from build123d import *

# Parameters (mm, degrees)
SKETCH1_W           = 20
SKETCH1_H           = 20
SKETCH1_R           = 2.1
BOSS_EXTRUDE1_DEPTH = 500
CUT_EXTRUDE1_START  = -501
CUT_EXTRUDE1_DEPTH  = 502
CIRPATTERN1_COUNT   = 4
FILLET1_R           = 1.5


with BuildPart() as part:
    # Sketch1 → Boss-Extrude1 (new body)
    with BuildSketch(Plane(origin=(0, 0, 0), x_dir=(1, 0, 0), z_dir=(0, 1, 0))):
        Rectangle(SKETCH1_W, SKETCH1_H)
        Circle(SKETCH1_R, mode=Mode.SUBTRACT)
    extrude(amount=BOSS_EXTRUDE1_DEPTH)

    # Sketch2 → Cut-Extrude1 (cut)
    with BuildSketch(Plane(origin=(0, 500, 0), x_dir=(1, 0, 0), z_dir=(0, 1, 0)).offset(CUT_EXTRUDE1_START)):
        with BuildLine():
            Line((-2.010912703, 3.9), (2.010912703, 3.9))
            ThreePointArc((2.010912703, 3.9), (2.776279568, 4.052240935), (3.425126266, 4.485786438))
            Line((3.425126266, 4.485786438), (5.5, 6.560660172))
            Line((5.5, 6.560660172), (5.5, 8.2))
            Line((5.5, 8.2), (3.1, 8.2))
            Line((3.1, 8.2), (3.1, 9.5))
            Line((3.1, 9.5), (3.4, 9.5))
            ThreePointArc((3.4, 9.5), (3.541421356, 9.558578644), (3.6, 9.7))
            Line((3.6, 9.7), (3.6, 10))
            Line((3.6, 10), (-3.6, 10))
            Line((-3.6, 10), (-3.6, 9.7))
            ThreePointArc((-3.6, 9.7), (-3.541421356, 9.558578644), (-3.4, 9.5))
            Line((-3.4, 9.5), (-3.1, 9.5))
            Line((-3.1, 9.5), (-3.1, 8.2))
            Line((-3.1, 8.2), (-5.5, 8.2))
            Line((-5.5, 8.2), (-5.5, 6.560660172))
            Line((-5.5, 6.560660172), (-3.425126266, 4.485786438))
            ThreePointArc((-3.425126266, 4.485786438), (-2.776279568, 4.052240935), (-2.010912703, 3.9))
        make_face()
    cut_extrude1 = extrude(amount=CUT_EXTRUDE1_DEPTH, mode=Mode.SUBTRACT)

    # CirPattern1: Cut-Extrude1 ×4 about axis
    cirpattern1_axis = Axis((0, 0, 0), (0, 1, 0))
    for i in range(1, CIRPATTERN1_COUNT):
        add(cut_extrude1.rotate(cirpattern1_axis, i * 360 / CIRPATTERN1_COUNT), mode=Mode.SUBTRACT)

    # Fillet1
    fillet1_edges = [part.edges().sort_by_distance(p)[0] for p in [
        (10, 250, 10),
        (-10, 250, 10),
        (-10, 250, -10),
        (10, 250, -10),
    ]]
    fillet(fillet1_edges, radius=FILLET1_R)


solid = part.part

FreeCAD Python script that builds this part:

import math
import FreeCAD as App
import Part
import Sketcher
Q = App.Units.Quantity


def edges_at(feature, points):
    """Names of the edges that pass closest to the given points."""
    edges = feature.Shape.Edges
    near = lambda p: min(range(len(edges)), key=lambda i: edges[i].distToShape(Part.Vertex(*p))[0])
    return sorted({f"Edge{near(p) + 1}" for p in points})

doc = App.newDocument("Part")
body = doc.addObject("PartDesign::Body", "Body")

# Sketch on XZ plane
sketch1 = body.newObject("Sketcher::SketchObject", "Sketch")
sketch1.AttachmentSupport = (doc.getObject("XZ_Plane"), [""])
sketch1.MapMode = "FlatFace"
sketch1.addGeometry(Part.LineSegment(App.Vector(-10, -10, 0), App.Vector(-10, 10, 0)), False)
sketch1.addGeometry(Part.LineSegment(App.Vector(-10, 10, 0), App.Vector(10, 10, 0)), False)
sketch1.addGeometry(Part.LineSegment(App.Vector(10, 10, 0), App.Vector(10, -10, 0)), False)
sketch1.addGeometry(Part.LineSegment(App.Vector(10, -10, 0), App.Vector(-10, -10, 0)), False)
sketch1.addGeometry(Part.Circle(App.Vector(0, 0, 0), App.Vector(0, 0, 1), 2.1), False)
sketch1.addConstraint(Sketcher.Constraint("Coincident", 0, 2, 1, 1))
sketch1.addConstraint(Sketcher.Constraint("Coincident", 1, 2, 2, 1))
sketch1.addConstraint(Sketcher.Constraint("Coincident", 2, 2, 3, 1))
sketch1.addConstraint(Sketcher.Constraint("Coincident", 3, 2, 0, 1))
sketch1.addConstraint(Sketcher.Constraint("Vertical", 0))
sketch1.addConstraint(Sketcher.Constraint("Horizontal", 1))
sketch1.addConstraint(Sketcher.Constraint("Vertical", 2))
sketch1.addConstraint(Sketcher.Constraint("Horizontal", 3))
sketch1.addConstraint(Sketcher.Constraint("Coincident", 4, 3, -1, 1))
sketch1.addConstraint(Sketcher.Constraint("Symmetric", 0, 2, 2, 2, -1, 1))
sketch1.addConstraint(Sketcher.Constraint("Equal", 3, 0))
sketch1.addConstraint(Sketcher.Constraint("Diameter", 4, Q("4.2 mm")))
sketch1.addConstraint(Sketcher.Constraint("DistanceX", 1, 1, 1, 2, Q("20 mm")))
pad1 = body.newObject("PartDesign::Pad", "Pad")
pad1.Profile = sketch1
pad1.Length = 500
pad1.Reversed = True

# Sketch on XZ plane
sketch2 = body.newObject("Sketcher::SketchObject", "Sketch001")
sketch2.AttachmentSupport = (doc.getObject("XZ_Plane"), [""])
sketch2.MapMode = "FlatFace"
sketch2.AttachmentOffset = App.Placement(App.Vector(0, 0, 1), App.Rotation())
sketch2.addGeometry(Part.LineSegment(App.Vector(-2.01, -3.9, 0), App.Vector(2.01, -3.9, 0)), False)
sketch2.addGeometry(Part.ArcOfCircle(Part.Circle(App.Vector(2.01, -5.9, 0), App.Vector(0, 0, 1), 2), math.radians(45), math.radians(90)), False)
sketch2.addGeometry(Part.LineSegment(App.Vector(3.43, -4.49, 0), App.Vector(5.5, -6.56, 0)), False)
sketch2.addGeometry(Part.LineSegment(App.Vector(5.5, -6.56, 0), App.Vector(5.5, -8.2, 0)), False)
sketch2.addGeometry(Part.LineSegment(App.Vector(5.5, -8.2, 0), App.Vector(3.1, -8.2, 0)), False)
sketch2.addGeometry(Part.LineSegment(App.Vector(3.1, -8.2, 0), App.Vector(3.1, -9.5, 0)), False)
sketch2.addGeometry(Part.LineSegment(App.Vector(3.1, -9.5, 0), App.Vector(3.4, -9.5, 0)), False)
sketch2.addGeometry(Part.ArcOfCircle(Part.Circle(App.Vector(3.4, -9.7, 0), App.Vector(0, 0, 1), 0.2), math.radians(0), math.radians(90)), False)
sketch2.addGeometry(Part.LineSegment(App.Vector(3.6, -9.7, 0), App.Vector(3.6, -10, 0)), False)
sketch2.addGeometry(Part.LineSegment(App.Vector(3.6, -10, 0), App.Vector(-3.6, -10, 0)), False)
sketch2.addGeometry(Part.LineSegment(App.Vector(-3.6, -10, 0), App.Vector(-3.6, -9.7, 0)), False)
sketch2.addGeometry(Part.ArcOfCircle(Part.Circle(App.Vector(-3.4, -9.7, 0), App.Vector(0, 0, 1), 0.2), math.radians(90), math.radians(180)), False)
sketch2.addGeometry(Part.LineSegment(App.Vector(-3.4, -9.5, 0), App.Vector(-3.1, -9.5, 0)), False)
sketch2.addGeometry(Part.LineSegment(App.Vector(-3.1, -9.5, 0), App.Vector(-3.1, -8.2, 0)), False)
sketch2.addGeometry(Part.LineSegment(App.Vector(-3.1, -8.2, 0), App.Vector(-5.5, -8.2, 0)), False)
sketch2.addGeometry(Part.LineSegment(App.Vector(-5.5, -8.2, 0), App.Vector(-5.5, -6.56, 0)), False)
sketch2.addGeometry(Part.LineSegment(App.Vector(-5.5, -6.56, 0), App.Vector(-3.43, -4.49, 0)), False)
sketch2.addGeometry(Part.ArcOfCircle(Part.Circle(App.Vector(-2.01, -5.9, 0), App.Vector(0, 0, 1), 2), math.radians(90), math.radians(135)), False)
sketch2.addConstraint(Sketcher.Constraint("Tangent", 0, 2, 1, 2))
sketch2.addConstraint(Sketcher.Constraint("Tangent", 1, 1, 2, 1))
sketch2.addConstraint(Sketcher.Constraint("Coincident", 2, 2, 3, 1))
sketch2.addConstraint(Sketcher.Constraint("Coincident", 3, 2, 4, 1))
sketch2.addConstraint(Sketcher.Constraint("Coincident", 4, 2, 5, 1))
sketch2.addConstraint(Sketcher.Constraint("Coincident", 5, 2, 6, 1))
sketch2.addConstraint(Sketcher.Constraint("Tangent", 6, 2, 7, 2))
sketch2.addConstraint(Sketcher.Constraint("Tangent", 7, 1, 8, 1))
sketch2.addConstraint(Sketcher.Constraint("Coincident", 8, 2, 9, 1))
sketch2.addConstraint(Sketcher.Constraint("Coincident", 9, 2, 10, 1))
sketch2.addConstraint(Sketcher.Constraint("Tangent", 10, 2, 11, 2))
sketch2.addConstraint(Sketcher.Constraint("Tangent", 11, 1, 12, 1))
sketch2.addConstraint(Sketcher.Constraint("Coincident", 12, 2, 13, 1))
sketch2.addConstraint(Sketcher.Constraint("Coincident", 13, 2, 14, 1))
sketch2.addConstraint(Sketcher.Constraint("Coincident", 14, 2, 15, 1))
sketch2.addConstraint(Sketcher.Constraint("Coincident", 15, 2, 16, 1))
sketch2.addConstraint(Sketcher.Constraint("Tangent", 16, 2, 17, 2))
sketch2.addConstraint(Sketcher.Constraint("Tangent", 17, 1, 0, 1))
sketch2.addConstraint(Sketcher.Constraint("Horizontal", 0))
sketch2.addConstraint(Sketcher.Constraint("Vertical", 3))
sketch2.addConstraint(Sketcher.Constraint("Horizontal", 4))
sketch2.addConstraint(Sketcher.Constraint("Vertical", 5))
sketch2.addConstraint(Sketcher.Constraint("Horizontal", 6))
sketch2.addConstraint(Sketcher.Constraint("Vertical", 8))
sketch2.addConstraint(Sketcher.Constraint("Horizontal", 9))
sketch2.addConstraint(Sketcher.Constraint("Vertical", 10))
sketch2.addConstraint(Sketcher.Constraint("Horizontal", 12))
sketch2.addConstraint(Sketcher.Constraint("Vertical", 13))
sketch2.addConstraint(Sketcher.Constraint("Horizontal", 14))
sketch2.addConstraint(Sketcher.Constraint("Vertical", 15))
sketch2.addConstraint(Sketcher.Constraint("Equal", 7, 11))
sketch2.addConstraint(Sketcher.Constraint("Equal", 1, 17))
sketch2.addConstraint(Sketcher.Constraint("Symmetric", 7, 3, 11, 3, -2))
sketch2.addConstraint(Sketcher.Constraint("Symmetric", 4, 2, 13, 2, -2))
sketch2.addConstraint(Sketcher.Constraint("Symmetric", 2, 2, 15, 2, -2))
sketch2.addConstraint(Sketcher.Constraint("Perpendicular", 2, 16))
sketch2.addConstraint(Sketcher.Constraint("Horizontal", 1, 1, 16, 2))
sketch2.addConstraint(Sketcher.Constraint("Equal", 12, 8))
sketch2.addConstraint(Sketcher.Constraint("Radius", 1, Q("2 mm")))
sketch2.addConstraint(Sketcher.Constraint("Radius", 7, Q("0.2 mm")))
sketch2.addConstraint(Sketcher.Constraint("DistanceX", 4, 2, 4, 1, Q("2.4 mm")))
sketch2.addConstraint(Sketcher.Constraint("DistanceX", 6, 1, 6, 2, Q("0.3 mm")))
sketch2.addConstraint(Sketcher.Constraint("DistanceX", 9, 2, 9, 1, Q("7.2 mm")))
sketch2.addConstraint(Sketcher.Constraint("DistanceY", 5, 2, 5, 1, Q("1.3 mm")))
sketch2.addConstraint(Sketcher.Constraint("DistanceY", 8, 2, -1, 1, Q("10 mm")))
sketch2.addConstraint(Sketcher.Constraint("DistanceY", 1, 3, -1, 1, Q("5.9 mm")))
sketch2.addConstraint(Sketcher.Constraint("DistanceY", 3, 2, 3, 1, Q("1.63934 mm")))
pocket1 = body.newObject("PartDesign::Pocket", "Pocket")
pocket1.Profile = sketch2
pocket1.Length = 502
doc.recompute()

polarpattern = body.newObject("PartDesign::PolarPattern", "PolarPattern")
polarpattern.Originals = [pocket1]
polarpattern.Axis = (doc.getObject("Y_Axis"), [""])
polarpattern.Angle = 360
polarpattern.Occurrences = 4
body.Tip = polarpattern
doc.recompute()

fillet = body.newObject("PartDesign::Fillet", "Fillet")
fillet.Base = (polarpattern, edges_at(polarpattern, [
    (10, 250, 10),
    (-10, 250, 10),
    (-10, 250, -10),
    (10, 250, -10),
]))
fillet.Radius = 1.5

doc.recompute()
